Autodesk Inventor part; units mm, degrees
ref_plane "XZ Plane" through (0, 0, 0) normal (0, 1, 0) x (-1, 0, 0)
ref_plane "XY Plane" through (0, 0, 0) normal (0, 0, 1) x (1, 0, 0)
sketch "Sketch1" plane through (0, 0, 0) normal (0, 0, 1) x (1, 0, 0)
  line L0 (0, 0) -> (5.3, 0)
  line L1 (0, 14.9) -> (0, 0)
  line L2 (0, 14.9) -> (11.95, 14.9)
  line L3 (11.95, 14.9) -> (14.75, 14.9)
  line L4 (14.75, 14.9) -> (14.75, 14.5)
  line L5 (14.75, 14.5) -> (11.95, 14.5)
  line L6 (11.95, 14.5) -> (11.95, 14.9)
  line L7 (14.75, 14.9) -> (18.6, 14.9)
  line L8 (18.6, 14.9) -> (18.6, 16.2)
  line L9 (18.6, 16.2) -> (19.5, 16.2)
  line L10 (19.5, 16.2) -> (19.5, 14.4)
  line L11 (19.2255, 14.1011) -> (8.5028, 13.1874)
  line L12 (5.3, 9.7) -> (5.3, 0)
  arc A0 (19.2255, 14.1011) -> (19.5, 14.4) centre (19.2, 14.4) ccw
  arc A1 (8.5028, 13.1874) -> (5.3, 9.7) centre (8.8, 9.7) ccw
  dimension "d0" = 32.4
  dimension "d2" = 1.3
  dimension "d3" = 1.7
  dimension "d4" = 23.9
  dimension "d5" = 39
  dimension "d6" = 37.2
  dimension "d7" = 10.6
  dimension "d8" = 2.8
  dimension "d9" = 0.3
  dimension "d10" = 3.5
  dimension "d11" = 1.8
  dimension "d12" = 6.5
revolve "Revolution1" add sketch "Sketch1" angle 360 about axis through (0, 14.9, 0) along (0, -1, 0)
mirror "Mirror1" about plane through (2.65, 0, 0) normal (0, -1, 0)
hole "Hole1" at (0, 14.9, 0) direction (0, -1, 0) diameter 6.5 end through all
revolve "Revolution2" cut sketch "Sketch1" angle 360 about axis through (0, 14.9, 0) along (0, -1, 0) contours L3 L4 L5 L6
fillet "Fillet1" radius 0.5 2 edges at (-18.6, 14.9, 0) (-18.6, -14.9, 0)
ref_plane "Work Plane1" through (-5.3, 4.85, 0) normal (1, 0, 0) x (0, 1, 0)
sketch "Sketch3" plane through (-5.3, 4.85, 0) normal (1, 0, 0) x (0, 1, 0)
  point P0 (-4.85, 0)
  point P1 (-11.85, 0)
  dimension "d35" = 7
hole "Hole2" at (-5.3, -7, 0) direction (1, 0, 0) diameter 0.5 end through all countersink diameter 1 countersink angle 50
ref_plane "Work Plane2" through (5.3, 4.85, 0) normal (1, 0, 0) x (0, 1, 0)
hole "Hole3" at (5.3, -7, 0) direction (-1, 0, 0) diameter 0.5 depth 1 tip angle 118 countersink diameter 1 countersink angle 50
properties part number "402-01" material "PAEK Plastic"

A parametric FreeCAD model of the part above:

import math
import FreeCAD as App
import Part
import Sketcher
from FreeCAD import Vector
Q = App.Units.Quantity


def edges_at(feature, points):
    """Names of the edges that pass closest to the given points."""
    edges = feature.Shape.Edges
    near = lambda p: min(range(len(edges)), key=lambda i: edges[i].distToShape(Part.Vertex(*p))[0])
    return sorted({f"Edge{near(p) + 1}" for p in points})


def add_polygon(sketch, points):
    """Adds a closed chain of lines whose ends are joined by coincident constraints."""
    first, n = sketch.GeometryCount, len(points)
    for a, b in zip(points, points[1:] + points[:1]):
        sketch.addGeometry(Part.LineSegment(App.Vector(*a, 0), App.Vector(*b, 0)), False)
    for i in range(n):
        sketch.addConstraint(Sketcher.Constraint("Coincident", first + i, 2, first + (i + 1) % n, 1))

doc = App.newDocument("Part")
body = doc.addObject("PartDesign::Body", "Body")

# Sketch on XY plane
sketch1 = body.newObject("Sketcher::SketchObject", "Sketch")
sketch1.AttachmentSupport = (doc.getObject("XY_Plane"), [""])
sketch1.MapMode = "FlatFace"
sketch1.addGeometry(Part.LineSegment(Vector(0, 14.9, 0), Vector(0, 0, 0)), False)
sketch1.addGeometry(Part.LineSegment(Vector(0, 0, 0), Vector(5.3, 0, 0)), False)
sketch1.addGeometry(Part.LineSegment(Vector(5.3, 0, 0), Vector(5.3, 9.7, 0)), False)
sketch1.addGeometry(Part.ArcOfCircle(Part.Circle(Vector(8.8, 9.7, 0), Vector(0, 0, 1), 3.5), math.radians(95), math.radians(180)), False)
sketch1.addGeometry(Part.LineSegment(Vector(8.5, 13.19, 0), Vector(19.23, 14.1, 0)), False)
sketch1.addGeometry(Part.ArcOfCircle(Part.Circle(Vector(19.2, 14.4, 0), Vector(0, 0, 1), 0.3), math.radians(-85), math.radians(0)), False)
sketch1.addGeometry(Part.LineSegment(Vector(19.5, 14.4, 0), Vector(19.5, 16.2, 0)), False)
sketch1.addGeometry(Part.LineSegment(Vector(19.5, 16.2, 0), Vector(18.6, 16.2, 0)), False)
sketch1.addGeometry(Part.LineSegment(Vector(18.6, 16.2, 0), Vector(18.6, 14.9, 0)), False)
sketch1.addGeometry(Part.LineSegment(Vector(18.6, 14.9, 0), Vector(0, 14.9, 0)), False)
sketch1.addConstraint(Sketcher.Constraint("Coincident", 0, 2, 1, 1))
sketch1.addConstraint(Sketcher.Constraint("Coincident", 1, 2, 2, 1))
sketch1.addConstraint(Sketcher.Constraint("Tangent", 2, 2, 3, 2))
sketch1.addConstraint(Sketcher.Constraint("Tangent", 3, 1, 4, 1))
sketch1.addConstraint(Sketcher.Constraint("Tangent", 4, 2, 5, 1))
sketch1.addConstraint(Sketcher.Constraint("Tangent", 5, 2, 6, 1))
sketch1.addConstraint(Sketcher.Constraint("Coincident", 6, 2, 7, 1))
sketch1.addConstraint(Sketcher.Constraint("Coincident", 7, 2, 8, 1))
sketch1.addConstraint(Sketcher.Constraint("Coincident", 8, 2, 9, 1))
sketch1.addConstraint(Sketcher.Constraint("Coincident", 9, 2, 0, 1))
sketch1.addConstraint(Sketcher.Constraint("Vertical", 0))
sketch1.addConstraint(Sketcher.Constraint("Horizontal", 1))
sketch1.addConstraint(Sketcher.Constraint("Vertical", 2))
sketch1.addConstraint(Sketcher.Constraint("Vertical", 6))
sketch1.addConstraint(Sketcher.Constraint("Horizontal", 7))
sketch1.addConstraint(Sketcher.Constraint("Vertical", 8))
sketch1.addConstraint(Sketcher.Constraint("Horizontal", 9))
sketch1.addConstraint(Sketcher.Constraint("Coincident", 0, 2, -1, 1))
sketch1.addConstraint(Sketcher.Constraint("Radius", 3, Q("3.5 mm")))
sketch1.addConstraint(Sketcher.Constraint("Radius", 5, Q("0.3 mm")))
sketch1.addConstraint(Sketcher.Constraint("DistanceY", 6, 1, 6, 2, Q("1.8 mm")))
sketch1.addConstraint(Sketcher.Constraint("DistanceY", 8, 2, 8, 1, Q("1.3 mm")))
sketch1.addConstraint(Sketcher.Constraint("DistanceY", 3, 3, 6, 2, Q("6.5 mm")))
sketch1.addConstraint(Sketcher.Constraint("DistanceX", 1, 1, 1, 2, Q("5.3 mm")))
sketch1.addConstraint(Sketcher.Constraint("DistanceX", 7, 2, 7, 1, Q("0.9 mm")))
sketch1.addConstraint(Sketcher.Constraint("DistanceX", 9, 2, 9, 1, Q("18.6 mm")))
sketch1.addConstraint(Sketcher.Constraint("DistanceY", 0, 2, 0, 1, Q("14.9 mm")))
revolution = body.newObject("PartDesign::Revolution", "Revolution")
revolution.Profile = sketch1
revolution.ReferenceAxis = (sketch1, ["V_Axis"])
revolution.Angle = 360
doc.recompute()

mirrored = body.newObject("PartDesign::Mirrored", "Mirrored")
mirrored.TransformMode = "Transform body"
mirrored.MirrorPlane = (doc.getObject("XZ_Plane"), [""])
body.Tip = mirrored

# Sketch on XZ plane
sketch2 = body.newObject("Sketcher::SketchObject", "Sketch001")
sketch2.AttachmentSupport = (doc.getObject("XZ_Plane"), [""])
sketch2.MapMode = "FlatFace"
sketch2.AttachmentOffset = App.Placement(Vector(0, 0, -14.9), App.Rotation())
sketch2.addGeometry(Part.Circle(Vector(0, 0, 0), Vector(0, 0, 1), 3.2), False)
sketch2.addConstraint(Sketcher.Constraint("Coincident", 0, 3, -1, 1))
sketch2.addConstraint(Sketcher.Constraint("Diameter", 0, Q("6.5 mm")))
doc.recompute()
hole = body.newObject("PartDesign::Hole", "Hole")
hole.Profile = sketch2
hole.ThreadType = "None"
hole.Diameter = 6.5
hole.DepthType = "ThroughAll"
hole.Reversed = True

# Sketch on XY plane
sketch3 = body.newObject("Sketcher::SketchObject", "Sketch002")
sketch3.AttachmentSupport = (doc.getObject("XY_Plane"), [""])
sketch3.MapMode = "FlatFace"
add_polygon(sketch3, [(14.75, 14.9), (11.95, 14.9), (11.95, 14.5), (14.75, 14.5)])  # lines 0-3
sketch3.addConstraint(Sketcher.Constraint("Horizontal", 0))
sketch3.addConstraint(Sketcher.Constraint("Vertical", 1))
sketch3.addConstraint(Sketcher.Constraint("Horizontal", 2))
sketch3.addConstraint(Sketcher.Constraint("Vertical", 3))
sketch3.addConstraint(Sketcher.Constraint("DistanceX", 0, 2, 0, 1, Q("2.8 mm")))
sketch3.addConstraint(Sketcher.Constraint("DistanceY", 1, 2, 1, 1, Q("0.4 mm")))
sketch3.addConstraint(Sketcher.Constraint("DistanceY", -1, 1, 0, 2, Q("14.9 mm")))
sketch3.addConstraint(Sketcher.Constraint("DistanceX", -1, 1, 0, 2, Q("11.95 mm")))
groove = body.newObject("PartDesign::Groove", "Groove")
groove.Profile = sketch3
groove.ReferenceAxis = (sketch3, ["V_Axis"])
groove.Angle = 360
doc.recompute()

fillet = body.newObject("PartDesign::Fillet", "Fillet")
fillet.Base = (groove, edges_at(groove, [(-18.6, 14.9, 0), (-18.6, -14.9, 0)]))
fillet.Radius = 0.5

# Sketch on YZ plane
sketch4 = body.newObject("Sketcher::SketchObject", "Sketch003")
sketch4.AttachmentSupport = (doc.getObject("YZ_Plane"), [""])
sketch4.MapMode = "FlatFace"
sketch4.AttachmentOffset = App.Placement(Vector(0, 0, -5.3), App.Rotation())
sketch4.addGeometry(Part.Circle(Vector(-7, 0, 0), Vector(0, 0, 1), 0.25), False)
sketch4.addConstraint(Sketcher.Constraint("PointOnObject", 0, 3, -1))
sketch4.addConstraint(Sketcher.Constraint("Diameter", 0, Q("0.5 mm")))
sketch4.addConstraint(Sketcher.Constraint("DistanceX", 0, 3, -1, 1, Q("7 mm")))
doc.recompute()
hole2 = body.newObject("PartDesign::Hole", "Hole001")
hole2.Profile = sketch4
hole2.ThreadType = "None"
hole2.Diameter = 0.5
hole2.DepthType = "ThroughAll"
hole2.HoleCutType = "Countersink"
hole2.HoleCutDiameter = 1
hole2.HoleCutCountersinkAngle = 50
hole2.Reversed = True

# Sketch on YZ plane
sketch5 = body.newObject("Sketcher::SketchObject", "Sketch004")
sketch5.AttachmentSupport = (doc.getObject("YZ_Plane"), [""])
sketch5.MapMode = "FlatFace"
sketch5.AttachmentOffset = App.Placement(Vector(0, 0, 5.3), App.Rotation())
sketch5.addGeometry(Part.Circle(Vector(-7, 0, 0), Vector(0, 0, 1), 0.25), False)
sketch5.addConstraint(Sketcher.Constraint("PointOnObject", 0, 3, -1))
sketch5.addConstraint(Sketcher.Constraint("Diameter", 0, Q("0.5 mm")))
sketch5.addConstraint(Sketcher.Constraint("DistanceX", 0, 3, -1, 1, Q("7 mm")))
doc.recompute()
hole3 = body.newObject("PartDesign::Hole", "Hole002")
hole3.Profile = sketch5
hole3.ThreadType = "None"
hole3.Diameter = 0.5
hole3.DepthType = "Dimension"
hole3.Depth = 1
hole3.DrillPoint = "Angled"
hole3.DrillPointAngle = 118
hole3.HoleCutType = "Countersink"
hole3.HoleCutDiameter = 1
hole3.HoleCutCountersinkAngle = 50

doc.recompute()
